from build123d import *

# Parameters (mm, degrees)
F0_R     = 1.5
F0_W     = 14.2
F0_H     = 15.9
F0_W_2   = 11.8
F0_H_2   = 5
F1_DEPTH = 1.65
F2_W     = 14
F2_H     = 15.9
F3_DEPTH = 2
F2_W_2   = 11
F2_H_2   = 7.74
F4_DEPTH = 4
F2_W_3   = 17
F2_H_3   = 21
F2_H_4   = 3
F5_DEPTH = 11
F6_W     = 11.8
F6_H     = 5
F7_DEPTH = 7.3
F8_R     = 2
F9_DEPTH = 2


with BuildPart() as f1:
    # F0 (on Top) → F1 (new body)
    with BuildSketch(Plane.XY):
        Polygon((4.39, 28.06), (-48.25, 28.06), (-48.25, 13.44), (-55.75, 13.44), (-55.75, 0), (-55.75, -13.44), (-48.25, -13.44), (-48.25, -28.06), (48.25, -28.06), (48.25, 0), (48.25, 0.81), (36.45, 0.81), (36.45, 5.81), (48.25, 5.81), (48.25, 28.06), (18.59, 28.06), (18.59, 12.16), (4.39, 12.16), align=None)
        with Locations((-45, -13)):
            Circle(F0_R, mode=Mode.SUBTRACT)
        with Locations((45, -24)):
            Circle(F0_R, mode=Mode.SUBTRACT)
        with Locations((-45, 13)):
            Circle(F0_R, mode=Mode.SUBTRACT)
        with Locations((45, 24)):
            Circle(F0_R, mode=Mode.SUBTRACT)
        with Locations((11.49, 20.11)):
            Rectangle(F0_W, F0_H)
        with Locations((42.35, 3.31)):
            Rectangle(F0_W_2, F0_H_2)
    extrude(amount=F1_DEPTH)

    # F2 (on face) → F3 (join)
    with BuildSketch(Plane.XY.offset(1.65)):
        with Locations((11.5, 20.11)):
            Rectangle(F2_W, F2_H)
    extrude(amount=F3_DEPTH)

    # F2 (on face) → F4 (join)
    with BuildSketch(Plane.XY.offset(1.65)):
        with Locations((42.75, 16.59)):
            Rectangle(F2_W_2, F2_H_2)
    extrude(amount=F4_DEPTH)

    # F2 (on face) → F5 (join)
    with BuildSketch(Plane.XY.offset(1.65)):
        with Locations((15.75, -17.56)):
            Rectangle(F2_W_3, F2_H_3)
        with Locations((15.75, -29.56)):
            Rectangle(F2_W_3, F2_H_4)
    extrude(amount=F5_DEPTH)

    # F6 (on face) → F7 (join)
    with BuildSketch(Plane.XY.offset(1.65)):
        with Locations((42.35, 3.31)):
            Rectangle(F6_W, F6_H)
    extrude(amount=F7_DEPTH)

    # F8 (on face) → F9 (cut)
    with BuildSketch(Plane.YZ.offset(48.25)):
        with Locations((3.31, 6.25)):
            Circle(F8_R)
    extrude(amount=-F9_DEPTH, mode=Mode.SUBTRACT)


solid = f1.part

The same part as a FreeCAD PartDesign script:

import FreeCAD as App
import Part
import Sketcher
from FreeCAD import Vector
Q = App.Units.Quantity

doc = App.newDocument("Part")
body = doc.addObject("PartDesign::Body", "Body")

sketch1 = body.newObject("Sketcher::SketchObject", "Sketch")
sketch1.AttachmentSupport = (doc.getObject("XY_Plane"), [""])
sketch1.MapMode = "FlatFace"
sketch1.addGeometry(Part.LineSegment(Vector(-48.2, 28.1, 0), Vector(-48.2, 13.4, 0)), False)
sketch1.addGeometry(Part.LineSegment(Vector(-48.2, 13.4, 0), Vector(-55.8, 13.4, 0)), False)
sketch1.addGeometry(Part.LineSegment(Vector(-55.8, 13.4, 0), Vector(-55.8, -13.4, 0)), False)
sketch1.addGeometry(Part.LineSegment(Vector(-55.8, -13.4, 0), Vector(-48.2, -13.4, 0)), False)
sketch1.addGeometry(Part.LineSegment(Vector(-48.2, -13.4, 0), Vector(-48.2, -28.1, 0)), False)
sketch1.addGeometry(Part.LineSegment(Vector(-48.2, -28.1, 0), Vector(48.2, -28.1, 0)), False)
sketch1.addGeometry(Part.LineSegment(Vector(48.2, -28.1, 0), Vector(48.2, 28.1, 0)), False)
sketch1.addGeometry(Part.LineSegment(Vector(48.2, 28.1, 0), Vector(-48.2, 28.1, 0)), False)
sketch1.addGeometry(Part.Circle(Vector(-45, -13, 0), Vector(0, 0, 1), 1.5), False)
sketch1.addGeometry(Part.Circle(Vector(45, -24, 0), Vector(0, 0, 1), 1.5), False)
sketch1.addGeometry(Part.Circle(Vector(-45, 13, 0), Vector(0, 0, 1), 1.5), False)
sketch1.addGeometry(Part.Circle(Vector(45, 24, 0), Vector(0, 0, 1), 1.5), False)
sketch1.addConstraint(Sketcher.Constraint("Coincident", 0, 2, 1, 1))
sketch1.addConstraint(Sketcher.Constraint("Coincident", 1, 2, 2, 1))
sketch1.addConstraint(Sketcher.Constraint("Coincident", 2, 2, 3, 1))
sketch1.addConstraint(Sketcher.Constraint("Coincident", 3, 2, 4, 1))
sketch1.addConstraint(Sketcher.Constraint("Coincident", 4, 2, 5, 1))
sketch1.addConstraint(Sketcher.Constraint("Coincident", 5, 2, 6, 1))
sketch1.addConstraint(Sketcher.Constraint("Coincident", 6, 2, 7, 1))
sketch1.addConstraint(Sketcher.Constraint("Coincident", 7, 2, 0, 1))
sketch1.addConstraint(Sketcher.Constraint("Vertical", 0))
sketch1.addConstraint(Sketcher.Constraint("Horizontal", 1))
sketch1.addConstraint(Sketcher.Constraint("Vertical", 2))
sketch1.addConstraint(Sketcher.Constraint("Horizontal", 3))
sketch1.addConstraint(Sketcher.Constraint("Vertical", 4))
sketch1.addConstraint(Sketcher.Constraint("Horizontal", 5))
sketch1.addConstraint(Sketcher.Constraint("Vertical", 6))
sketch1.addConstraint(Sketcher.Constraint("Horizontal", 7))
sketch1.addConstraint(Sketcher.Constraint("Equal", 8, 9))
sketch1.addConstraint(Sketcher.Constraint("Equal", 9, 10))
sketch1.addConstraint(Sketcher.Constraint("Equal", 10, 11))
sketch1.addConstraint(Sketcher.Constraint("Symmetric", 4, 2, 6, 2, -1, 1))
sketch1.addConstraint(Sketcher.Constraint("Symmetric", 8, 3, 10, 3, -1))
sketch1.addConstraint(Sketcher.Constraint("Symmetric", 9, 3, 11, 3, -1))
sketch1.addConstraint(Sketcher.Constraint("Symmetric", 0, 2, 3, 2, -1))
sketch1.addConstraint(Sketcher.Constraint("Diameter", 8, Q("3 mm")))
sketch1.addConstraint(Sketcher.Constraint("DistanceX", 1, 2, 1, 1, Q("7.5 mm")))
sketch1.addConstraint(Sketcher.Constraint("DistanceX", 5, 1, 5, 2, Q("96.5 mm")))
sketch1.addConstraint(Sketcher.Constraint("DistanceX", 8, 3, -1, 1, Q("45 mm")))
sketch1.addConstraint(Sketcher.Constraint("DistanceY", 8, 3, -1, 1, Q("13 mm")))
sketch1.addConstraint(Sketcher.Constraint("DistanceX", -1, 1, 9, 3, Q("45 mm")))
sketch1.addConstraint(Sketcher.Constraint("DistanceY", 9, 3, -1, 1, Q("24 mm")))
sketch1.addConstraint(Sketcher.Constraint("DistanceY", 0, 2, 0, 1, Q("14.62 mm")))
sketch1.addConstraint(Sketcher.Constraint("DistanceY", 2, 2, 2, 1, Q("26.88 mm")))
pad1 = body.newObject("PartDesign::Pad", "Pad")
pad1.Profile = sketch1
pad1.Length = 1.65

sketch2 = body.newObject("Sketcher::SketchObject", "Sketch001")
sketch2.AttachmentSupport = (doc.getObject("XY_Plane"), [""])
sketch2.MapMode = "FlatFace"
sketch2.AttachmentOffset = App.Placement(Vector(0, 0, 1.65), App.Rotation())
sketch2.addGeometry(Part.LineSegment(Vector(4, 28, 0), Vector(4, 12, 0)), False)
sketch2.addGeometry(Part.LineSegment(Vector(4, 12, 0), Vector(18, 12, 0)), False)
sketch2.addGeometry(Part.LineSegment(Vector(18, 12, 0), Vector(18, 28, 0)), False)
sketch2.addGeometry(Part.LineSegment(Vector(18, 28, 0), Vector(4, 28, 0)), False)
sketch2.addConstraint(Sketcher.Constraint("Coincident", 0, 2, 1, 1))
sketch2.addConstraint(Sketcher.Constraint("Coincident", 1, 2, 2, 1))
sketch2.addConstraint(Sketcher.Constraint("Coincident", 2, 2, 3, 1))
sketch2.addConstraint(Sketcher.Constraint("Coincident", 3, 2, 0, 1))
sketch2.addConstraint(Sketcher.Constraint("Vertical", 0))
sketch2.addConstraint(Sketcher.Constraint("Horizontal", 1))
sketch2.addConstraint(Sketcher.Constraint("Vertical", 2))
sketch2.addConstraint(Sketcher.Constraint("Horizontal", 3))
sketch2.addConstraint(Sketcher.Constraint("DistanceX", 1, 1, 1, 2, Q("14 mm")))
sketch2.addConstraint(Sketcher.Constraint("DistanceY", 0, 2, 0, 1, Q("15.9 mm")))
sketch2.addConstraint(Sketcher.Constraint("DistanceX", -1, 1, 0, 2, Q("4.5 mm")))
sketch2.addConstraint(Sketcher.Constraint("DistanceY", -1, 1, 0, 2, Q("12.16 mm")))
pad2 = body.newObject("PartDesign::Pad", "Pad001")
pad2.Profile = sketch2
pad2.Length = 2

sketch3 = body.newObject("Sketcher::SketchObject", "Sketch002")
sketch3.AttachmentSupport = (doc.getObject("XY_Plane"), [""])
sketch3.MapMode = "FlatFace"
sketch3.AttachmentOffset = App.Placement(Vector(0, 0, 1.65), App.Rotation())
sketch3.addGeometry(Part.LineSegment(Vector(37, 20, 0), Vector(37, 13, 0)), False)
sketch3.addGeometry(Part.LineSegment(Vector(37, 13, 0), Vector(48, 13, 0)), False)
sketch3.addGeometry(Part.LineSegment(Vector(48, 13, 0), Vector(48, 20, 0)), False)
sketch3.addGeometry(Part.LineSegment(Vector(48, 20, 0), Vector(37, 20, 0)), False)
sketch3.addConstraint(Sketcher.Constraint("Coincident", 0, 2, 1, 1))
sketch3.addConstraint(Sketcher.Constraint("Coincident", 1, 2, 2, 1))
sketch3.addConstraint(Sketcher.Constraint("Coincident", 2, 2, 3, 1))
sketch3.addConstraint(Sketcher.Constraint("Coincident", 3, 2, 0, 1))
sketch3.addConstraint(Sketcher.Constraint("Vertical", 0))
sketch3.addConstraint(Sketcher.Constraint("Horizontal", 1))
sketch3.addConstraint(Sketcher.Constraint("Vertical", 2))
sketch3.addConstraint(Sketcher.Constraint("Horizontal", 3))
sketch3.addConstraint(Sketcher.Constraint("DistanceX", 1, 1, 1, 2, Q("11 mm")))
sketch3.addConstraint(Sketcher.Constraint("DistanceY", 0, 2, 0, 1, Q("7.74 mm")))
sketch3.addConstraint(Sketcher.Constraint("DistanceX", -1, 1, 0, 2, Q("37.25 mm")))
sketch3.addConstraint(Sketcher.Constraint("DistanceY", -1, 1, 0, 2, Q("12.72 mm")))
pad3 = body.newObject("PartDesign::Pad", "Pad002")
pad3.Profile = sketch3
pad3.Length = 4

sketch4 = body.newObject("Sketcher::SketchObject", "Sketch003")
sketch4.AttachmentSupport = (doc.getObject("XY_Plane"), [""])
sketch4.MapMode = "FlatFace"
sketch4.AttachmentOffset = App.Placement(Vector(0, 0, 1.65), App.Rotation())
sketch4.addGeometry(Part.LineSegment(Vector(7, -7, 0), Vector(7, -31, 0)), False)
sketch4.addGeometry(Part.LineSegment(Vector(7, -31, 0), Vector(24, -31, 0)), False)
sketch4.addGeometry(Part.LineSegment(Vector(24, -31, 0), Vector(24, -7, 0)), False)
sketch4.addGeometry(Part.LineSegment(Vector(24, -7, 0), Vector(7, -7, 0)), False)
sketch4.addConstraint(Sketcher.Constraint("Coincident", 0, 2, 1, 1))
sketch4.addConstraint(Sketcher.Constraint("Coincident", 1, 2, 2, 1))
sketch4.addConstraint(Sketcher.Constraint("Coincident", 2, 2, 3, 1))
sketch4.addConstraint(Sketcher.Constraint("Coincident", 3, 2, 0, 1))
sketch4.addConstraint(Sketcher.Constraint("Vertical", 0))
sketch4.addConstraint(Sketcher.Constraint("Horizontal", 1))
sketch4.addConstraint(Sketcher.Constraint("Vertical", 2))
sketch4.addConstraint(Sketcher.Constraint("Horizontal", 3))
sketch4.addConstraint(Sketcher.Constraint("DistanceX", 1, 1, 1, 2, Q("17 mm")))
sketch4.addConstraint(Sketcher.Constraint("DistanceY", 0, 2, 0, 1, Q("24 mm")))
sketch4.addConstraint(Sketcher.Constraint("DistanceX", -1, 1, 0, 2, Q("7.25 mm")))
sketch4.addConstraint(Sketcher.Constraint("DistanceY", 0, 2, -1, 1, Q("31.06 mm")))
pad4 = body.newObject("PartDesign::Pad", "Pad003")
pad4.Profile = sketch4
pad4.Length = 11

sketch5 = body.newObject("Sketcher::SketchObject", "Sketch004")
sketch5.AttachmentSupport = (doc.getObject("XY_Plane"), [""])
sketch5.MapMode = "FlatFace"
sketch5.AttachmentOffset = App.Placement(Vector(0, 0, 1.65), App.Rotation())
sketch5.addGeometry(Part.LineSegment(Vector(36, 6, 0), Vector(36, 1, 0)), False)
sketch5.addGeometry(Part.LineSegment(Vector(36, 1, 0), Vector(48, 1, 0)), False)
sketch5.addGeometry(Part.LineSegment(Vector(48, 1, 0), Vector(48, 6, 0)), False)
sketch5.addGeometry(Part.LineSegment(Vector(48, 6, 0), Vector(36, 6, 0)), False)
sketch5.addConstraint(Sketcher.Constraint("Coincident", 0, 2, 1, 1))
sketch5.addConstraint(Sketcher.Constraint("Coincident", 1, 2, 2, 1))
sketch5.addConstraint(Sketcher.Constraint("Coincident", 2, 2, 3, 1))
sketch5.addConstraint(Sketcher.Constraint("Coincident", 3, 2, 0, 1))
sketch5.addConstraint(Sketcher.Constraint("Vertical", 0))
sketch5.addConstraint(Sketcher.Constraint("Horizontal", 1))
sketch5.addConstraint(Sketcher.Constraint("Vertical", 2))
sketch5.addConstraint(Sketcher.Constraint("Horizontal", 3))
sketch5.addConstraint(Sketcher.Constraint("DistanceY", 0, 2, 0, 1, Q("5 mm")))
sketch5.addConstraint(Sketcher.Constraint("DistanceX", 1, 1, 1, 2, Q("11.8 mm")))
sketch5.addConstraint(Sketcher.Constraint("DistanceX", -1, 1, 0, 2, Q("36.45 mm")))
sketch5.addConstraint(Sketcher.Constraint("DistanceY", -1, 1, 0, 2, Q("0.81 mm")))
pad5 = body.newObject("PartDesign::Pad", "Pad004")
pad5.Profile = sketch5
pad5.Length = 7.3

sketch6 = body.newObject("Sketcher::SketchObject", "Sketch005")
sketch6.AttachmentSupport = (doc.getObject("YZ_Plane"), [""])
sketch6.MapMode = "FlatFace"
sketch6.AttachmentOffset = App.Placement(Vector(0, 0, 48.25), App.Rotation())
sketch6.addGeometry(Part.Circle(Vector(3.3, 6.2, 0), Vector(0, 0, 1), 2), False)
sketch6.addConstraint(Sketcher.Constraint("Diameter", 0, Q("4 mm")))
sketch6.addConstraint(Sketcher.Constraint("DistanceX", -1, 1, 0, 3, Q("3.31 mm")))
sketch6.addConstraint(Sketcher.Constraint("DistanceY", -1, 1, 0, 3, Q("6.25 mm")))
pocket1 = body.newObject("PartDesign::Pocket", "Pocket")
pocket1.Profile = sketch6
pocket1.Length = 2

doc.recompute()
